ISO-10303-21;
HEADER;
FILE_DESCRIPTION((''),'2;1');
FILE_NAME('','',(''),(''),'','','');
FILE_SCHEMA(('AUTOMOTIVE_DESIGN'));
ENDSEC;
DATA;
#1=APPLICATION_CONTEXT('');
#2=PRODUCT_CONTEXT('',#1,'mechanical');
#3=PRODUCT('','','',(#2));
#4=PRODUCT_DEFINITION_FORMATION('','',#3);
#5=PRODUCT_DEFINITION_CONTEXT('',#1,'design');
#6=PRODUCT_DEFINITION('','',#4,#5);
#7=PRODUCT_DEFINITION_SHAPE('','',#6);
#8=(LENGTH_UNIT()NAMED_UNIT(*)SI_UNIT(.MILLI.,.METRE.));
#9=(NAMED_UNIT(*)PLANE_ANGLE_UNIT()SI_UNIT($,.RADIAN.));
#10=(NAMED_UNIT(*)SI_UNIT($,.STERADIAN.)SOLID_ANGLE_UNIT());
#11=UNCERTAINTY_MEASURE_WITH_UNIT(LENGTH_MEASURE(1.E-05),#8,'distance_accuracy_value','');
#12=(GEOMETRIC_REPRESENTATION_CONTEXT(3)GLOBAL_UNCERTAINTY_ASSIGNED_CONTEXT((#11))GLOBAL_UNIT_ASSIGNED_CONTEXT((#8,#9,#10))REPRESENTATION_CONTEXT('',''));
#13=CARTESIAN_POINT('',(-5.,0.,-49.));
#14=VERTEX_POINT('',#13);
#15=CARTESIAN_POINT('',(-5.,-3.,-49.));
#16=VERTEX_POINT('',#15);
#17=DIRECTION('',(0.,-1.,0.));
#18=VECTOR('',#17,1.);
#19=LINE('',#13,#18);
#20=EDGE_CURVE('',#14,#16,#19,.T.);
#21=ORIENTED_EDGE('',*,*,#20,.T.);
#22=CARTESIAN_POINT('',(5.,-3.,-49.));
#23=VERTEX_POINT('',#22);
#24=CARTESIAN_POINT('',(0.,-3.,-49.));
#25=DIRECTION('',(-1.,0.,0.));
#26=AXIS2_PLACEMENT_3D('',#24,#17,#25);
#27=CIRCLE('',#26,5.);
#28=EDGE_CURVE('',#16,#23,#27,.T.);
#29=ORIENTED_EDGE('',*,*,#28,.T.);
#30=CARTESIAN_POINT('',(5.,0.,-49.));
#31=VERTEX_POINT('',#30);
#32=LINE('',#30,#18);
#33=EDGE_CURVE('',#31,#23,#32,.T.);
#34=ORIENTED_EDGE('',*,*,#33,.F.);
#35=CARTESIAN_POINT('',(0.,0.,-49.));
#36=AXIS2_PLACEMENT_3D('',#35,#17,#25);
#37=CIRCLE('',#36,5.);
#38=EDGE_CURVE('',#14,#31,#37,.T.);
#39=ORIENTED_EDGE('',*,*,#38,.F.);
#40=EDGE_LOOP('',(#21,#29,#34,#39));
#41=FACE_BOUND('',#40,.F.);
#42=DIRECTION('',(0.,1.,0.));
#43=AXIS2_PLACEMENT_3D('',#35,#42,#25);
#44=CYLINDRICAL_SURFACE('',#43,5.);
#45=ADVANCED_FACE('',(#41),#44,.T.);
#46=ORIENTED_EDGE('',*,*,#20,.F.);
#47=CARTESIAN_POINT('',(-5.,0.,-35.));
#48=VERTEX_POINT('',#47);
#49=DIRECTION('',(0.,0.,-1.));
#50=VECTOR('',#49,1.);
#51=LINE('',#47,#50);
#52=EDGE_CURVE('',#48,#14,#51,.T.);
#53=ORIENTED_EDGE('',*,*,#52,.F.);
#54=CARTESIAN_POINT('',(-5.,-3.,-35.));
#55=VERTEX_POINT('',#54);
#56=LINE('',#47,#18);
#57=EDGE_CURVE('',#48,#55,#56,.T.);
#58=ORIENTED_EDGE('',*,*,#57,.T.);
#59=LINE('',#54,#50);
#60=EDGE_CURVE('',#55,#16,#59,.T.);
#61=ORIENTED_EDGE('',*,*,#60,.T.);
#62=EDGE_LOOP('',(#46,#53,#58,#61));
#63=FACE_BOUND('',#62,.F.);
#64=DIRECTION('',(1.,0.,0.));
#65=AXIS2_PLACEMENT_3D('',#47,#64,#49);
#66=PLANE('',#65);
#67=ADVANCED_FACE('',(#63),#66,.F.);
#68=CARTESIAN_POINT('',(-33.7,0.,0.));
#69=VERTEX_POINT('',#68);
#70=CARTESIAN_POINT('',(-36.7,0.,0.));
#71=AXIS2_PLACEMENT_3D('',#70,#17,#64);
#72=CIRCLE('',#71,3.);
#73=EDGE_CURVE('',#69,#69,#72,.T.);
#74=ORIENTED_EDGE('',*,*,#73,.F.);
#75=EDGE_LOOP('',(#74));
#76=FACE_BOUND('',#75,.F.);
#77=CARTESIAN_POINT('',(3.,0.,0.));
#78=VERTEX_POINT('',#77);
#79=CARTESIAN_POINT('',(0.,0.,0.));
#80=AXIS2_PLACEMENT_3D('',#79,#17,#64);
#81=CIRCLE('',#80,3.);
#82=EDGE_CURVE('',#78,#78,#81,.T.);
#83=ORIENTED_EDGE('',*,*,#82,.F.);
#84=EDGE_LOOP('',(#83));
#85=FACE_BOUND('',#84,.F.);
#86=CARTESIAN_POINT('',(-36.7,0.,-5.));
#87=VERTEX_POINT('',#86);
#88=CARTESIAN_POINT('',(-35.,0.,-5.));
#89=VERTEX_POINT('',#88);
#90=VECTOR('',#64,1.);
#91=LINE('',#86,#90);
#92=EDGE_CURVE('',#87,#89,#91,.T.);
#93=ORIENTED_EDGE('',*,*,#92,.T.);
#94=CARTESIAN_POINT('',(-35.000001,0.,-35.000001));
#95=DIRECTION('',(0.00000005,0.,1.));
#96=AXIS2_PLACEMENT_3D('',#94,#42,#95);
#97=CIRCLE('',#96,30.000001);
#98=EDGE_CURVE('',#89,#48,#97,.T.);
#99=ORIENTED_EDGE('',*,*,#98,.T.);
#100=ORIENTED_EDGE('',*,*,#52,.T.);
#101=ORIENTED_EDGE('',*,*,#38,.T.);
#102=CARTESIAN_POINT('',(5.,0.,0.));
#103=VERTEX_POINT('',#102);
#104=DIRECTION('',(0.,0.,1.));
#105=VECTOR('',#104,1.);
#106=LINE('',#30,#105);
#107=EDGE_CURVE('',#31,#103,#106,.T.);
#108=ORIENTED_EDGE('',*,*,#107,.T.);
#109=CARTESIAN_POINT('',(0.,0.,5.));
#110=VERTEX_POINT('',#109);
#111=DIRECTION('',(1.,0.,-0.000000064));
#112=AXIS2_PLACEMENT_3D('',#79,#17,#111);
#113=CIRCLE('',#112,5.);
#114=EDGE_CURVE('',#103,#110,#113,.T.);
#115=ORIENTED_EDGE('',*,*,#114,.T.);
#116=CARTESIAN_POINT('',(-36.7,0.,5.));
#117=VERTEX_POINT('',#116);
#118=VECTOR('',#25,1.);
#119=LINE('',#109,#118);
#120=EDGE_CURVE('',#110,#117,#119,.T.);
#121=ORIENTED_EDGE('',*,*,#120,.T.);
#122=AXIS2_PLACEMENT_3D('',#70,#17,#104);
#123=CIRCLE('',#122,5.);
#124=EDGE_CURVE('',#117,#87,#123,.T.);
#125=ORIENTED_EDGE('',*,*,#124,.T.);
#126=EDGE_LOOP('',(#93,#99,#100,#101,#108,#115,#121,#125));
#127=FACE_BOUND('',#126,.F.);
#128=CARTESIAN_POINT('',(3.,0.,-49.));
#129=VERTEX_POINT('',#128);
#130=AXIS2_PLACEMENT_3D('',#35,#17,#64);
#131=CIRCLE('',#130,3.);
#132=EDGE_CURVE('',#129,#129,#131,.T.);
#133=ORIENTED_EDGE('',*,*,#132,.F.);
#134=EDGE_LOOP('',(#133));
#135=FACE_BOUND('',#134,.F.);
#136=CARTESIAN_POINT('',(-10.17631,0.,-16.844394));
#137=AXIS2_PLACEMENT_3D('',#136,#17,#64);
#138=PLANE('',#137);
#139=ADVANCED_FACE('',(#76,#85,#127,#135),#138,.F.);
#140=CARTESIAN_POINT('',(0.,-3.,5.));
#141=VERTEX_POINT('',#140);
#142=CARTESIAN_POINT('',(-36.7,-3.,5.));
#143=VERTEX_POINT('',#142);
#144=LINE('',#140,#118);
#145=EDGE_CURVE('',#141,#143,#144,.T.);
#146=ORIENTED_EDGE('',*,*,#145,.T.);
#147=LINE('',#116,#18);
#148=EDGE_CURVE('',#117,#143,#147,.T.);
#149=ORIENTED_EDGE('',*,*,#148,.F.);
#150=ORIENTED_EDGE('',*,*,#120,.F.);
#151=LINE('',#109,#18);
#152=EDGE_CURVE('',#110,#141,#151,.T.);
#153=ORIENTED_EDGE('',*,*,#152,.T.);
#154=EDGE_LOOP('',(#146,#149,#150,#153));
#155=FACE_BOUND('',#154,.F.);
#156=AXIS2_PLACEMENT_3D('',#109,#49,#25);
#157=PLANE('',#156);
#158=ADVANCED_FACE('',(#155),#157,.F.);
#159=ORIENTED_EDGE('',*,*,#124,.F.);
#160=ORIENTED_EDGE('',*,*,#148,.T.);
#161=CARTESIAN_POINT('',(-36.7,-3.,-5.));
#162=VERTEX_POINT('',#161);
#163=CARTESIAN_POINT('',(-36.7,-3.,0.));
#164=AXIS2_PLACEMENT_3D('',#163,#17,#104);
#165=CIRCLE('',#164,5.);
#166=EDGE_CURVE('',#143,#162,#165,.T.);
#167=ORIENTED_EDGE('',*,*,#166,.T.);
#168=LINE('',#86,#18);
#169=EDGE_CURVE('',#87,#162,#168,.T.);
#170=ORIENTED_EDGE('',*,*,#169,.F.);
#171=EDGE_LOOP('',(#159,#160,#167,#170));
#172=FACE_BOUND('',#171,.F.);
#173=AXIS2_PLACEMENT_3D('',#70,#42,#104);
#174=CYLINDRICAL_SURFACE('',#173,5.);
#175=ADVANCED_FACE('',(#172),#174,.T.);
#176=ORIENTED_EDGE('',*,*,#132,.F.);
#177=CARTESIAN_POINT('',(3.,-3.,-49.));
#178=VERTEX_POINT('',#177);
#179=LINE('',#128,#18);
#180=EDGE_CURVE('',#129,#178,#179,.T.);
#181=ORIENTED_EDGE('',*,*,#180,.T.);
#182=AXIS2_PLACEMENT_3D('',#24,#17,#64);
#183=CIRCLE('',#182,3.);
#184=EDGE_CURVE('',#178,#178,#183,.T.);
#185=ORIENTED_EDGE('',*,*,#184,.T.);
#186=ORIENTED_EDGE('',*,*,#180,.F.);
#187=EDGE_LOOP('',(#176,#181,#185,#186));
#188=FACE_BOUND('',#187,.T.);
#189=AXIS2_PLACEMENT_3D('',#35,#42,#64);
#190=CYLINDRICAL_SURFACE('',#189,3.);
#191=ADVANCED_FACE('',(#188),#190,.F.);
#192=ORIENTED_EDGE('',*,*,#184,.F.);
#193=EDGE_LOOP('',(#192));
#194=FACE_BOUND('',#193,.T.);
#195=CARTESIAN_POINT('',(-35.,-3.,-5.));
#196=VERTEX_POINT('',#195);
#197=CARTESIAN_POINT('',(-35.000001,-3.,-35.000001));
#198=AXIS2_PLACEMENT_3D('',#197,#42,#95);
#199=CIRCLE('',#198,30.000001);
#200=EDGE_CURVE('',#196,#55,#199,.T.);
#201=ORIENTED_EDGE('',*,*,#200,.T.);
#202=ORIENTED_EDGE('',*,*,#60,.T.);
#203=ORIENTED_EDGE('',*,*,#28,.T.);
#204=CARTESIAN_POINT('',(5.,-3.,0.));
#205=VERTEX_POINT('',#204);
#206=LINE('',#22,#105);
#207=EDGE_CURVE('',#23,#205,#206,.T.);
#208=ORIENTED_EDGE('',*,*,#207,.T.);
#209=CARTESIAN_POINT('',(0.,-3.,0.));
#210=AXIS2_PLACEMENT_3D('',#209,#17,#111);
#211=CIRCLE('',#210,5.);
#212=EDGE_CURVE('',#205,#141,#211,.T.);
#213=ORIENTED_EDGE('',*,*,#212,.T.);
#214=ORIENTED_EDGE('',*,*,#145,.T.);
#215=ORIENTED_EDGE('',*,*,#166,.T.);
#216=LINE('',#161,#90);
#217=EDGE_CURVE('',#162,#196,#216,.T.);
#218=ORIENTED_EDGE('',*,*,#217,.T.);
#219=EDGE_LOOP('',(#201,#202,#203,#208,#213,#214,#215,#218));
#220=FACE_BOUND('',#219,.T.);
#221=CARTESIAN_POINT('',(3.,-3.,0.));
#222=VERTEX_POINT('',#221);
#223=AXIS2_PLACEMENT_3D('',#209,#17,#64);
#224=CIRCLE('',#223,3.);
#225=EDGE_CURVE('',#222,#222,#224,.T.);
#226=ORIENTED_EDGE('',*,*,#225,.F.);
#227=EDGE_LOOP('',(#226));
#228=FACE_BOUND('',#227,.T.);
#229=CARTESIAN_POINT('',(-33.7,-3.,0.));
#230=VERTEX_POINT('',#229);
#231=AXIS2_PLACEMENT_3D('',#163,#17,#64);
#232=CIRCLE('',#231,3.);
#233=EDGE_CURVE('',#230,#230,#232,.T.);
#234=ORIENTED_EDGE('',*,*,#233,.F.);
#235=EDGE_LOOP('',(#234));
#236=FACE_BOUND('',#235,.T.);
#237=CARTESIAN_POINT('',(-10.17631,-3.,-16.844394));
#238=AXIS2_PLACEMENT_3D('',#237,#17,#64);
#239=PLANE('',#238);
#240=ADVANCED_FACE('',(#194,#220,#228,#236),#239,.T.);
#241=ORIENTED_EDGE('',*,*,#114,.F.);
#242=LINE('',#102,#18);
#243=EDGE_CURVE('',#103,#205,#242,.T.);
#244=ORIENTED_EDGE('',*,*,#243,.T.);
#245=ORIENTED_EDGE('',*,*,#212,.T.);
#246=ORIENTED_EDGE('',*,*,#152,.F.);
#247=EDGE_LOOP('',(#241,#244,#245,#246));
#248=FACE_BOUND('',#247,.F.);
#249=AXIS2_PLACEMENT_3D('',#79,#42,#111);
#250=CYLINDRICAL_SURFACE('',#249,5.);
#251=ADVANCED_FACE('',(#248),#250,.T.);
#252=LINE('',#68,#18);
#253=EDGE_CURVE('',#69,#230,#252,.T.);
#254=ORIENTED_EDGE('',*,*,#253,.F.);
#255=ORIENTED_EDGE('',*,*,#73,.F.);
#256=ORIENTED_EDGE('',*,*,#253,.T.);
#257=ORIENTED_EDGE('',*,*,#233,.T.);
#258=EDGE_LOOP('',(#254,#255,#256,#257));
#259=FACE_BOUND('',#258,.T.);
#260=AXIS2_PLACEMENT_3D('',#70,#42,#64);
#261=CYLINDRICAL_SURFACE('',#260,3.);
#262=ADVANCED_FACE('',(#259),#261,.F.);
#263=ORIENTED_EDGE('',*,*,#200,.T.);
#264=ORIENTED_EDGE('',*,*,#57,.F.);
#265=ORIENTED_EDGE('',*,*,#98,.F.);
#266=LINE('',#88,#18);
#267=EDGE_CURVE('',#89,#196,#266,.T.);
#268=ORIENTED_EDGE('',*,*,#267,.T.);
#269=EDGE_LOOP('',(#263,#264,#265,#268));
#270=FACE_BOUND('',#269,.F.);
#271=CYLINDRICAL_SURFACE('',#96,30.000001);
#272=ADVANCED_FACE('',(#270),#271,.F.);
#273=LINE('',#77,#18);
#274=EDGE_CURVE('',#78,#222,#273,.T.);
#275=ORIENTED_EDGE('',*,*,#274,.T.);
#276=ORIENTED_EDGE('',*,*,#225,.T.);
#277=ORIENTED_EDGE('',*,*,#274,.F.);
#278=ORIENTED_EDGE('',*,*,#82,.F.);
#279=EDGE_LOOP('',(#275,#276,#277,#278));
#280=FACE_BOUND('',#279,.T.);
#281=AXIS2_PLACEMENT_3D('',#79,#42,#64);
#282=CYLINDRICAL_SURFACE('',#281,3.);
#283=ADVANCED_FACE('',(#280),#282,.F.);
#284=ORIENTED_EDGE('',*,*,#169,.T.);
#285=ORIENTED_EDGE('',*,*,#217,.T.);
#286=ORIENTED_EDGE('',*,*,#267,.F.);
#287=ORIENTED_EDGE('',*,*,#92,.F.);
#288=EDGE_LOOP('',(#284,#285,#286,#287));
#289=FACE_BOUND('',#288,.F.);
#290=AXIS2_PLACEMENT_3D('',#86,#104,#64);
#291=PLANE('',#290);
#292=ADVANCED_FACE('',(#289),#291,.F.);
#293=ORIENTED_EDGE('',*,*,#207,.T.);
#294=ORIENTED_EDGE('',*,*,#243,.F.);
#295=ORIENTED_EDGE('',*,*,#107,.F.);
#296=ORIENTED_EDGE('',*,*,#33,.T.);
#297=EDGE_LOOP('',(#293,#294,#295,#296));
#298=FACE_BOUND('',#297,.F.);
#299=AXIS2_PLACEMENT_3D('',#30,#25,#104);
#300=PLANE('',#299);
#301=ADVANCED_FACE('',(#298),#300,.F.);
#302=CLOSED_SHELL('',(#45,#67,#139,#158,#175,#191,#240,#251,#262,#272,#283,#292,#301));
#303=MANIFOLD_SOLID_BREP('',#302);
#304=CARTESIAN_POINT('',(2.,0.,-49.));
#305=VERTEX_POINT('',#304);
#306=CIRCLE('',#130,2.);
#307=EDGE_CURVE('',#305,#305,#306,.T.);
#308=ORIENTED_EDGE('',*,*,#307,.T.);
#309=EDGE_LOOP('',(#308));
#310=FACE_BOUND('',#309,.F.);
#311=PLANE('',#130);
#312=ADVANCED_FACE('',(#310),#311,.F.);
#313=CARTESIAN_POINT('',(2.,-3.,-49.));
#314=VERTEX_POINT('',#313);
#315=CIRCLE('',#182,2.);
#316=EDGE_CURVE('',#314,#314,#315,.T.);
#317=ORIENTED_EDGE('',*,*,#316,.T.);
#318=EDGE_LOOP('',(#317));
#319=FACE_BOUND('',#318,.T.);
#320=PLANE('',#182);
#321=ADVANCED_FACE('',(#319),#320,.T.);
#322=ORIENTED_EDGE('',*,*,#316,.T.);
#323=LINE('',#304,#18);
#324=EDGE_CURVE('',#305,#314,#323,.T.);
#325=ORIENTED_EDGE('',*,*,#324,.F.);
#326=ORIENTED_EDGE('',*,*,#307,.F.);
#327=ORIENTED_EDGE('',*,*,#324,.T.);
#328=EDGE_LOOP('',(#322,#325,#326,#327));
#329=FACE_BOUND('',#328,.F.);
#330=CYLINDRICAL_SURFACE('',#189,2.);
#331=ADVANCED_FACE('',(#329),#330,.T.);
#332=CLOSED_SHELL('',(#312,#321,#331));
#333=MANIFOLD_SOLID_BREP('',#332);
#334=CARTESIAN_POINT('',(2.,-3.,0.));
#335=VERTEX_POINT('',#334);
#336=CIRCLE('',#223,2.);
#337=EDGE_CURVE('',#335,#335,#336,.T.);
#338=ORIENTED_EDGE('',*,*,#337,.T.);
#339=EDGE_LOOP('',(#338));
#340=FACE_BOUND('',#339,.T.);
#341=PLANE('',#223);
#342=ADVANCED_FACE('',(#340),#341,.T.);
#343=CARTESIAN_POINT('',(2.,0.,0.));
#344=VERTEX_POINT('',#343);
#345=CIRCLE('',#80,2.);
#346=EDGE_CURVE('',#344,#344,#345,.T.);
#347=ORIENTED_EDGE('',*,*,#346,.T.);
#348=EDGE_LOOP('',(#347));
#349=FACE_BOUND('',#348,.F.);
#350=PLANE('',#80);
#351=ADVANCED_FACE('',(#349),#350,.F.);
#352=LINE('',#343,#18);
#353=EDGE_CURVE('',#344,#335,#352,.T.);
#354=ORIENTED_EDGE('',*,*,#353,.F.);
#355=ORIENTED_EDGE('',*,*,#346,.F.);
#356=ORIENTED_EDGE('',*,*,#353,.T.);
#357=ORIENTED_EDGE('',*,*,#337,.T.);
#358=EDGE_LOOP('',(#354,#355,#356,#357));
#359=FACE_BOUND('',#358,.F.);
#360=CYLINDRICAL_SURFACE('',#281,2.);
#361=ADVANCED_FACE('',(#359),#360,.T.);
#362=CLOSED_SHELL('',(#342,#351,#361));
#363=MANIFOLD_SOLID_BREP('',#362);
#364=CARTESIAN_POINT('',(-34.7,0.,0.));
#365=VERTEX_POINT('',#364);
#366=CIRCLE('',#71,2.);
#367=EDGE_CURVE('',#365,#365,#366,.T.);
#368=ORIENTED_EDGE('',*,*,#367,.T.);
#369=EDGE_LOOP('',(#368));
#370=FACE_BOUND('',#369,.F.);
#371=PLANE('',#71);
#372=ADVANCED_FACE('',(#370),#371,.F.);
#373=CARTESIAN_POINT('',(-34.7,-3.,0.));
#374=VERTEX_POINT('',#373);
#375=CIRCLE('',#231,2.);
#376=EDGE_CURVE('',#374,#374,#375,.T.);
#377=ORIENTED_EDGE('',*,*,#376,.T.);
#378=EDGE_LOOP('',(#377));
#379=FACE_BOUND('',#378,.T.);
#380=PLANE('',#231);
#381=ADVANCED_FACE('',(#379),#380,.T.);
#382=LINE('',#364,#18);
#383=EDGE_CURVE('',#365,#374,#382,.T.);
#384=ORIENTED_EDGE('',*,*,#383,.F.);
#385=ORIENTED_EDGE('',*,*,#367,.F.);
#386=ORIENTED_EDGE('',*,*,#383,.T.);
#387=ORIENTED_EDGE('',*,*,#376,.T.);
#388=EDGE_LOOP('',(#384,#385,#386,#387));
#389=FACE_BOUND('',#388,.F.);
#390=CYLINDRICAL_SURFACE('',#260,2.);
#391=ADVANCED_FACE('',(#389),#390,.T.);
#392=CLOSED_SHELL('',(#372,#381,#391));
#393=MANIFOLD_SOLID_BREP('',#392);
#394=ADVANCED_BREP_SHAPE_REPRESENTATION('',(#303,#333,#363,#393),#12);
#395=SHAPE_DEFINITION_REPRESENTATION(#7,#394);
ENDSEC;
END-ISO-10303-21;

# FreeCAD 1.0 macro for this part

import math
import FreeCAD as App
import Part
import Sketcher

V = App.Vector

doc = App.newDocument("Part")
body = doc.addObject("PartDesign::Body", "Body")
body.AllowCompound = True

# Sketch on XZ plane
sketch1 = body.newObject("Sketcher::SketchObject", "Sketch")
sketch1.AttachmentSupport = (doc.getObject("XZ_Plane"), [""])
sketch1.MapMode = "FlatFace"
sketch1.addGeometry([
    Part.LineSegment(V(0, 5, 0), V(-36.7, 5, 0)),  # 0
    Part.ArcOfCircle(Part.Circle(V(-36.7, 0, 0), V(0, 0, 1), 5), math.radians(90), math.radians(270)),  # 1
    Part.LineSegment(V(-36.7, -5, 0), V(-35, -5, 0)),  # 2
    Part.ArcOfCircle(Part.Circle(V(-35.000001, -35.000001, 0), V(0, 0, 1), 30.000001), math.radians(0.000003), math.radians(89.999997)),  # 3
    Part.LineSegment(V(-5, -35, 0), V(-5, -49, 0)),  # 4
    Part.ArcOfCircle(Part.Circle(V(0, -49, 0), V(0, 0, 1), 5), math.radians(180), math.radians(360)),  # 5
    Part.LineSegment(V(5, -49, 0), V(5, 0, 0)),  # 6
    Part.ArcOfCircle(Part.Circle(V(0, 0, 0), V(0, 0, 1), 5), math.radians(-0.000004), math.radians(90.000004)),  # 7
    Part.Circle(V(0, -49, 0), V(0, 0, 1), 3),  # 8
    Part.Circle(V(-36.7, 0, 0), V(0, 0, 1), 3),  # 9
    Part.Circle(V(0, 0, 0), V(0, 0, 1), 3),  # 10
    Part.Circle(V(-36.7, 0, 0), V(0, 0, 1), 2),  # 11
    Part.Circle(V(0, 0, 0), V(0, 0, 1), 2),  # 12
    Part.Circle(V(0, -49, 0), V(0, 0, 1), 2),  # 13
], False)
sketch1.addConstraint([
    Sketcher.Constraint("Tangent", 0, 2, 1, 1),
    Sketcher.Constraint("Tangent", 1, 2, 2, 1),
    Sketcher.Constraint("Tangent", 2, 2, 3, 2),
    Sketcher.Constraint("Tangent", 3, 1, 4, 1),
    Sketcher.Constraint("Tangent", 4, 2, 5, 1),
    Sketcher.Constraint("Tangent", 5, 2, 6, 1),
    Sketcher.Constraint("Tangent", 6, 2, 7, 1),
    Sketcher.Constraint("Tangent", 7, 2, 0, 1),
    Sketcher.Constraint("Horizontal", 0),
    Sketcher.Constraint("Horizontal", 2),
    Sketcher.Constraint("Vertical", 4),
    Sketcher.Constraint("Vertical", 6),
    Sketcher.Constraint("Coincident", 7, 3, -1, 1),
    Sketcher.Constraint("Coincident", 10, 3, -1, 1),
    Sketcher.Constraint("Coincident", 12, 3, -1, 1),
    Sketcher.Constraint("Coincident", 8, 3, 5, 3),
    Sketcher.Constraint("Coincident", 9, 3, 1, 3),
    Sketcher.Constraint("Coincident", 11, 3, 1, 3),
    Sketcher.Constraint("Coincident", 13, 3, 5, 3),
    Sketcher.Constraint("Equal", 1, 5),
    Sketcher.Constraint("Equal", 5, 7),
    Sketcher.Constraint("Equal", 8, 9),
    Sketcher.Constraint("Equal", 9, 10),
    Sketcher.Constraint("Equal", 11, 12),
    Sketcher.Constraint("Equal", 12, 13),
    Sketcher.Constraint("Diameter", 8, 6.0),
    Sketcher.Constraint("Diameter", 11, 4.0),
    Sketcher.Constraint("Radius", 1, 5.0),
    Sketcher.Constraint("Radius", 3, 30.000001),
    Sketcher.Constraint("DistanceY", 4, 2, 4, 1, 14.0),
    Sketcher.Constraint("DistanceX", 0, 2, 0, 1, 36.7),
])
pad1 = body.newObject("PartDesign::Pad", "Pad")
pad1.Profile = sketch1
pad1.Length = 3

doc.recompute()
